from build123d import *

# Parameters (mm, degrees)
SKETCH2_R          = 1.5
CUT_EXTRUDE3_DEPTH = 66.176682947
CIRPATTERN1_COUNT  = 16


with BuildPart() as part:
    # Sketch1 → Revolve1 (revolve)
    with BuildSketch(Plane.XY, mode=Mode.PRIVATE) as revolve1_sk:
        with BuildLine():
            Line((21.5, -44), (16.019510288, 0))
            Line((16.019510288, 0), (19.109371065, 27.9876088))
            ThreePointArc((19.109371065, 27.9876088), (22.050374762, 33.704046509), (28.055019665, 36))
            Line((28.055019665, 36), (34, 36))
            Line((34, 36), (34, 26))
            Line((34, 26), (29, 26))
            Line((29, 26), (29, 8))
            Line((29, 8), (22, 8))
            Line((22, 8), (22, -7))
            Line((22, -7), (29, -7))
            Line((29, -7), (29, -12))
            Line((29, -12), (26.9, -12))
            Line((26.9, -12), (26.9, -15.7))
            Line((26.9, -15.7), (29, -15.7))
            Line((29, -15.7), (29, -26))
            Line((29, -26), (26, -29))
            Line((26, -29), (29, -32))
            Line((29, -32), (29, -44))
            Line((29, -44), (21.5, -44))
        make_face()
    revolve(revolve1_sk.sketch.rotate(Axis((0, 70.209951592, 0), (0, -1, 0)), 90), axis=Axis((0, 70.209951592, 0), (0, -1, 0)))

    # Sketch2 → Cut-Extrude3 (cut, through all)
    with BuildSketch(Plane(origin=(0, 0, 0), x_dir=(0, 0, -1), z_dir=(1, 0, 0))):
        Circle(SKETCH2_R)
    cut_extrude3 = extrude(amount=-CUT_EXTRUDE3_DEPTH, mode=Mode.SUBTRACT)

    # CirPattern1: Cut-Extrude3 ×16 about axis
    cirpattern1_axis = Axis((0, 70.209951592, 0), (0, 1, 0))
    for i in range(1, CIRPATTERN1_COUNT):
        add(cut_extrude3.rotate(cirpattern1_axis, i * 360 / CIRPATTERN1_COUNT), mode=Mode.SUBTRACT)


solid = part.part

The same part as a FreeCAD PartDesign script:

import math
import FreeCAD as App
import Part
import Sketcher
from FreeCAD import Vector
Q = App.Units.Quantity

doc = App.newDocument("Part")
body = doc.addObject("PartDesign::Body", "Body")

sketch1 = body.newObject("Sketcher::SketchObject", "Sketch")
sketch1.AttachmentSupport = (doc.getObject("XY_Plane"), [""])
sketch1.MapMode = "FlatFace"
sketch1.addGeometry(Part.LineSegment(Vector(16, 0, 0), Vector(21.5, -44, 0)), False)
sketch1.addGeometry(Part.LineSegment(Vector(21.5, -44, 0), Vector(29, -44, 0)), False)
sketch1.addGeometry(Part.LineSegment(Vector(29, -44, 0), Vector(29, -32, 0)), False)
sketch1.addGeometry(Part.LineSegment(Vector(29, -32, 0), Vector(26, -29, 0)), False)
sketch1.addGeometry(Part.LineSegment(Vector(26, -29, 0), Vector(29, -26, 0)), False)
sketch1.addGeometry(Part.LineSegment(Vector(29, -26, 0), Vector(29, -15.7, 0)), False)
sketch1.addGeometry(Part.LineSegment(Vector(29, -15.7, 0), Vector(26.9, -15.7, 0)), False)
sketch1.addGeometry(Part.LineSegment(Vector(26.9, -15.7, 0), Vector(26.9, -12, 0)), False)
sketch1.addGeometry(Part.LineSegment(Vector(26.9, -12, 0), Vector(29, -12, 0)), False)
sketch1.addGeometry(Part.LineSegment(Vector(29, -12, 0), Vector(29, -7, 0)), False)
sketch1.addGeometry(Part.LineSegment(Vector(29, -7, 0), Vector(22, -7, 0)), False)
sketch1.addGeometry(Part.LineSegment(Vector(22, -7, 0), Vector(22, 8, 0)), False)
sketch1.addGeometry(Part.LineSegment(Vector(22, 8, 0), Vector(29, 8, 0)), False)
sketch1.addGeometry(Part.LineSegment(Vector(29, 8, 0), Vector(29, 26, 0)), False)
sketch1.addGeometry(Part.LineSegment(Vector(29, 26, 0), Vector(34, 26, 0)), False)
sketch1.addGeometry(Part.LineSegment(Vector(34, 26, 0), Vector(34, 36, 0)), False)
sketch1.addGeometry(Part.LineSegment(Vector(34, 36, 0), Vector(28.1, 36, 0)), False)
sketch1.addGeometry(Part.ArcOfCircle(Part.Circle(Vector(28.1, 27, 0), Vector(0, 0, 1), 9), math.radians(90), math.radians(174)), False)
sketch1.addGeometry(Part.LineSegment(Vector(19.1, 28, 0), Vector(16, 0, 0)), False)
sketch1.addConstraint(Sketcher.Constraint("Coincident", 0, 2, 1, 1))
sketch1.addConstraint(Sketcher.Constraint("Coincident", 1, 2, 2, 1))
sketch1.addConstraint(Sketcher.Constraint("Coincident", 2, 2, 3, 1))
sketch1.addConstraint(Sketcher.Constraint("Coincident", 3, 2, 4, 1))
sketch1.addConstraint(Sketcher.Constraint("Coincident", 4, 2, 5, 1))
sketch1.addConstraint(Sketcher.Constraint("Coincident", 5, 2, 6, 1))
sketch1.addConstraint(Sketcher.Constraint("Coincident", 6, 2, 7, 1))
sketch1.addConstraint(Sketcher.Constraint("Coincident", 7, 2, 8, 1))
sketch1.addConstraint(Sketcher.Constraint("Coincident", 8, 2, 9, 1))
sketch1.addConstraint(Sketcher.Constraint("Coincident", 9, 2, 10, 1))
sketch1.addConstraint(Sketcher.Constraint("Coincident", 10, 2, 11, 1))
sketch1.addConstraint(Sketcher.Constraint("Coincident", 11, 2, 12, 1))
sketch1.addConstraint(Sketcher.Constraint("Coincident", 12, 2, 13, 1))
sketch1.addConstraint(Sketcher.Constraint("Coincident", 13, 2, 14, 1))
sketch1.addConstraint(Sketcher.Constraint("Coincident", 14, 2, 15, 1))
sketch1.addConstraint(Sketcher.Constraint("Coincident", 15, 2, 16, 1))
sketch1.addConstraint(Sketcher.Constraint("Tangent", 16, 2, 17, 1))
sketch1.addConstraint(Sketcher.Constraint("Tangent", 17, 2, 18, 1))
sketch1.addConstraint(Sketcher.Constraint("Coincident", 18, 2, 0, 1))
sketch1.addConstraint(Sketcher.Constraint("Horizontal", 1))
sketch1.addConstraint(Sketcher.Constraint("Vertical", 2))
sketch1.addConstraint(Sketcher.Constraint("Vertical", 5))
sketch1.addConstraint(Sketcher.Constraint("Horizontal", 6))
sketch1.addConstraint(Sketcher.Constraint("Vertical", 7))
sketch1.addConstraint(Sketcher.Constraint("Horizontal", 8))
sketch1.addConstraint(Sketcher.Constraint("Vertical", 9))
sketch1.addConstraint(Sketcher.Constraint("Horizontal", 10))
sketch1.addConstraint(Sketcher.Constraint("Vertical", 11))
sketch1.addConstraint(Sketcher.Constraint("Horizontal", 12))
sketch1.addConstraint(Sketcher.Constraint("Vertical", 13))
sketch1.addConstraint(Sketcher.Constraint("Horizontal", 14))
sketch1.addConstraint(Sketcher.Constraint("Vertical", 15))
sketch1.addConstraint(Sketcher.Constraint("Horizontal", 16))
sketch1.addConstraint(Sketcher.Constraint("Symmetric", 4, 2, 13, 2, -1))
sketch1.addConstraint(Sketcher.Constraint("PointOnObject", 18, 2, -1))
sketch1.addConstraint(Sketcher.Constraint("Perpendicular", 3, 4))
sketch1.addConstraint(Sketcher.Constraint("Vertical", 2, 2, 4, 2))
sketch1.addConstraint(Sketcher.Constraint("Vertical", 5, 2, 8, 2))
sketch1.addConstraint(Sketcher.Constraint("Equal", 14, 9))
sketch1.addConstraint(Sketcher.Constraint("Equal", 3, 4))
sketch1.addConstraint(Sketcher.Constraint("Radius", 17, Q("9 mm")))
sketch1.addConstraint(Sketcher.Constraint("DistanceX", 10, 2, 10, 1, Q("7 mm")))
sketch1.addConstraint(Sketcher.Constraint("DistanceX", 14, 1, 14, 2, Q("5 mm")))
sketch1.addConstraint(Sketcher.Constraint("DistanceY", 2, 1, 2, 2, Q("12 mm")))
sketch1.addConstraint(Sketcher.Constraint("DistanceY", 11, 1, 11, 2, Q("15 mm")))
sketch1.addConstraint(Sketcher.Constraint("DistanceY", 13, 1, 13, 2, Q("18 mm")))
sketch1.addConstraint(Sketcher.Constraint("DistanceY", 15, 1, 15, 2, Q("10 mm")))
sketch1.addConstraint(Sketcher.Constraint("DistanceX", 1, 1, 1, 2, Q("7.5 mm")))
sketch1.addConstraint(Sketcher.Constraint("DistanceX", 6, 2, 6, 1, Q("2.1 mm")))
sketch1.addConstraint(Sketcher.Constraint("DistanceY", 5, 1, 5, 2, Q("10.3 mm")))
sketch1.addConstraint(Sketcher.Constraint("DistanceY", 7, 1, 7, 2, Q("3.7 mm")))
sketch1.addConstraint(Sketcher.Constraint("DistanceY", 0, 2, -1, 1, Q("44 mm")))
sketch1.addConstraint(Sketcher.Constraint("DistanceX", -1, 1, 1, 2, Q("29 mm")))
sketch1.addConstraint(Sketcher.Constraint("Angle", 0, Q("-82.9 deg")))
sketch1.addConstraint(Sketcher.Constraint("Angle", 18, Q("-96.3 deg")))
revolution = body.newObject("PartDesign::Revolution", "Revolution")
revolution.Profile = sketch1
revolution.ReferenceAxis = (sketch1, ["V_Axis"])
revolution.Angle = 360

sketch2 = body.newObject("Sketcher::SketchObject", "Sketch001")
sketch2.AttachmentSupport = (doc.getObject("YZ_Plane"), [""])
sketch2.MapMode = "FlatFace"
sketch2.addGeometry(Part.Circle(Vector(0, 0, 0), Vector(0, 0, 1), 1.5), False)
sketch2.addConstraint(Sketcher.Constraint("Coincident", 0, 3, -1, 1))
sketch2.addConstraint(Sketcher.Constraint("Diameter", 0, Q("3 mm")))
pocket1 = body.newObject("PartDesign::Pocket", "Pocket")
pocket1.Profile = sketch2
pocket1.Type = "ThroughAll"
doc.recompute()

polarpattern = body.newObject("PartDesign::PolarPattern", "PolarPattern")
polarpattern.Originals = [pocket1]
polarpattern.Axis = (doc.getObject("Y_Axis"), [""])
polarpattern.Angle = 360
polarpattern.Occurrences = 16
body.Tip = polarpattern

doc.recompute()
